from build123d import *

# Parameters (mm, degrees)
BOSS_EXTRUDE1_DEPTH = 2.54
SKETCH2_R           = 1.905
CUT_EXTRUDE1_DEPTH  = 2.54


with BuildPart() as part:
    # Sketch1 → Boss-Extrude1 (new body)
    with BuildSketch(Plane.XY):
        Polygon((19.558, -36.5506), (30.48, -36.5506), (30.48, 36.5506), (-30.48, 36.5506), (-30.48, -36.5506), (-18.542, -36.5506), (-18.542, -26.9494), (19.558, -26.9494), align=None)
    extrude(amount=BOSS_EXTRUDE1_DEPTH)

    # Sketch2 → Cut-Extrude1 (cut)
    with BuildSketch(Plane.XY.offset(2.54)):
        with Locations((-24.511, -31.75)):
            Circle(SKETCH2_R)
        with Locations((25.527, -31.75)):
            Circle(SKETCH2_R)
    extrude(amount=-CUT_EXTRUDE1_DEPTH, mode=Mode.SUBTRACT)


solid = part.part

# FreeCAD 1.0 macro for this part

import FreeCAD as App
import Part
import Sketcher

V = App.Vector
Q = App.Units.Quantity

doc = App.newDocument("Part")
body = doc.addObject("PartDesign::Body", "Body")

# Sketch on XY plane
sketch1 = body.newObject("Sketcher::SketchObject", "Sketch")
sketch1.AttachmentSupport = (doc.getObject("XY_Plane"), [""])
sketch1.MapMode = "FlatFace"
sketch1.addGeometry(Part.LineSegment(V(20, -37, 0), V(30, -37, 0)), False)
sketch1.addGeometry(Part.LineSegment(V(30, -37, 0), V(30, 37, 0)), False)
sketch1.addGeometry(Part.LineSegment(V(30, 37, 0), V(-30, 37, 0)), False)
sketch1.addGeometry(Part.LineSegment(V(-30, 37, 0), V(-30, -37, 0)), False)
sketch1.addGeometry(Part.LineSegment(V(-30, -37, 0), V(-19, -37, 0)), False)
sketch1.addGeometry(Part.LineSegment(V(-19, -37, 0), V(-19, -27, 0)), False)
sketch1.addGeometry(Part.LineSegment(V(-19, -27, 0), V(20, -27, 0)), False)
sketch1.addGeometry(Part.LineSegment(V(20, -27, 0), V(20, -37, 0)), False)
sketch1.addConstraint(Sketcher.Constraint("Coincident", 0, 2, 1, 1))
sketch1.addConstraint(Sketcher.Constraint("Coincident", 1, 2, 2, 1))
sketch1.addConstraint(Sketcher.Constraint("Coincident", 2, 2, 3, 1))
sketch1.addConstraint(Sketcher.Constraint("Coincident", 3, 2, 4, 1))
sketch1.addConstraint(Sketcher.Constraint("Coincident", 4, 2, 5, 1))
sketch1.addConstraint(Sketcher.Constraint("Coincident", 5, 2, 6, 1))
sketch1.addConstraint(Sketcher.Constraint("Coincident", 6, 2, 7, 1))
sketch1.addConstraint(Sketcher.Constraint("Coincident", 7, 2, 0, 1))
sketch1.addConstraint(Sketcher.Constraint("Horizontal", 0))
sketch1.addConstraint(Sketcher.Constraint("Vertical", 1))
sketch1.addConstraint(Sketcher.Constraint("Horizontal", 2))
sketch1.addConstraint(Sketcher.Constraint("Vertical", 3))
sketch1.addConstraint(Sketcher.Constraint("Horizontal", 4))
sketch1.addConstraint(Sketcher.Constraint("Vertical", 5))
sketch1.addConstraint(Sketcher.Constraint("Horizontal", 6))
sketch1.addConstraint(Sketcher.Constraint("Vertical", 7))
sketch1.addConstraint(Sketcher.Constraint("Symmetric", 0, 2, 2, 2, -1, 1))
sketch1.addConstraint(Sketcher.Constraint("Horizontal", 0, 2, 3, 2))
sketch1.addConstraint(Sketcher.Constraint("DistanceX", 2, 2, 2, 1, Q("2.4 in")))
sketch1.addConstraint(Sketcher.Constraint("DistanceX", 6, 1, 6, 2, Q("1.5 in")))
sketch1.addConstraint(Sketcher.Constraint("DistanceX", 0, 1, 0, 2, Q("0.43 in")))
sketch1.addConstraint(Sketcher.Constraint("DistanceY", 5, 2, 2, 2, Q("2.5 in")))
sketch1.addConstraint(Sketcher.Constraint("DistanceY", 1, 1, 1, 2, Q("2.878 in")))
pad1 = body.newObject("PartDesign::Pad", "Pad")
pad1.Profile = sketch1
pad1.Length = Q("0.1 in")

# Sketch on XY plane
sketch2 = body.newObject("Sketcher::SketchObject", "Sketch001")
sketch2.AttachmentSupport = (doc.getObject("XY_Plane"), [""])
sketch2.MapMode = "FlatFace"
sketch2.AttachmentOffset = App.Placement(V(0, 0, 0.1 * 25.4), App.Rotation())
sketch2.addGeometry(Part.Circle(V(-24.5, -31.8, 0), V(0, 0, 1), 1.9), False)
sketch2.addGeometry(Part.Circle(V(25.5, -31.8, 0), V(0, 0, 1), 1.9), False)
sketch2.addConstraint(Sketcher.Constraint("Equal", 0, 1))
sketch2.addConstraint(Sketcher.Constraint("Horizontal", 0, 3, 1, 3))
sketch2.addConstraint(Sketcher.Constraint("Diameter", 0, Q("0.15 in")))
sketch2.addConstraint(Sketcher.Constraint("DistanceY", 0, 3, -1, 1, Q("1.25 in")))
sketch2.addConstraint(Sketcher.Constraint("DistanceX", 0, 3, 1, 3, Q("1.97 in")))
sketch2.addConstraint(Sketcher.Constraint("DistanceX", 0, 3, -1, 1, Q("0.965 in")))
pocket1 = body.newObject("PartDesign::Pocket", "Pocket")
pocket1.Profile = sketch2
pocket1.Length = Q("0.1 in")

doc.recompute()
